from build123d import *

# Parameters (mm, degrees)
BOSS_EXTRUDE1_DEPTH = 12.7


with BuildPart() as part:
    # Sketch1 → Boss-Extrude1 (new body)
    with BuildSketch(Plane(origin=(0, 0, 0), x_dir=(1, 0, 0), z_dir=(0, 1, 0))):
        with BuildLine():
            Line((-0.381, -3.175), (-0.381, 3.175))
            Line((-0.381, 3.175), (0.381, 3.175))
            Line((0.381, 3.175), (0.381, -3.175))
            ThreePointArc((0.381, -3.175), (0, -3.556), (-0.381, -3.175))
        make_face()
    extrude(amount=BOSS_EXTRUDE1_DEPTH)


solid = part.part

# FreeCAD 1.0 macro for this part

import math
import FreeCAD as App
import Part
import Sketcher
from FreeCAD import Vector
Q = App.Units.Quantity

doc = App.newDocument("Part")
body = doc.addObject("PartDesign::Body", "Body")

sketch1 = body.newObject("Sketcher::SketchObject", "Sketch")
sketch1.AttachmentSupport = (doc.getObject("XZ_Plane"), [""])
sketch1.MapMode = "FlatFace"
sketch1.addGeometry([
    Part.LineSegment(Vector(-0.381, -3.175, 0), Vector(-0.381, 3.175, 0)),
    Part.ArcOfCircle(Part.Circle(Vector(0, 3.175, 0), Vector(0, 0, 1), 0.381), math.radians(0), math.radians(180)),
    Part.LineSegment(Vector(0.381, 3.175, 0), Vector(0.381, -3.175, 0)),
    Part.LineSegment(Vector(0.381, -3.175, 0), Vector(-0.381, -3.175, 0)),
], False)
sketch1.addConstraint([
    Sketcher.Constraint("Tangent", 0, 2, 1, 2),
    Sketcher.Constraint("Tangent", 1, 1, 2, 1),
    Sketcher.Constraint("Coincident", 2, 2, 3, 1),
    Sketcher.Constraint("Coincident", 3, 2, 0, 1),
    Sketcher.Constraint("Vertical", 0),
    Sketcher.Constraint("Vertical", 2),
    Sketcher.Constraint("Horizontal", 3),
    Sketcher.Constraint("Symmetric", 0, 2, 2, 2, -1, 1),
    Sketcher.Constraint("Radius", 1, Q("0.015 in")),
    Sketcher.Constraint("DistanceY", 0, 1, 0, 2, Q("0.25 in")),
])
pad1 = body.newObject("PartDesign::Pad", "Pad")
pad1.Profile = sketch1
pad1.Length = Q("0.5 in")
pad1.Reversed = True

doc.recompute()
